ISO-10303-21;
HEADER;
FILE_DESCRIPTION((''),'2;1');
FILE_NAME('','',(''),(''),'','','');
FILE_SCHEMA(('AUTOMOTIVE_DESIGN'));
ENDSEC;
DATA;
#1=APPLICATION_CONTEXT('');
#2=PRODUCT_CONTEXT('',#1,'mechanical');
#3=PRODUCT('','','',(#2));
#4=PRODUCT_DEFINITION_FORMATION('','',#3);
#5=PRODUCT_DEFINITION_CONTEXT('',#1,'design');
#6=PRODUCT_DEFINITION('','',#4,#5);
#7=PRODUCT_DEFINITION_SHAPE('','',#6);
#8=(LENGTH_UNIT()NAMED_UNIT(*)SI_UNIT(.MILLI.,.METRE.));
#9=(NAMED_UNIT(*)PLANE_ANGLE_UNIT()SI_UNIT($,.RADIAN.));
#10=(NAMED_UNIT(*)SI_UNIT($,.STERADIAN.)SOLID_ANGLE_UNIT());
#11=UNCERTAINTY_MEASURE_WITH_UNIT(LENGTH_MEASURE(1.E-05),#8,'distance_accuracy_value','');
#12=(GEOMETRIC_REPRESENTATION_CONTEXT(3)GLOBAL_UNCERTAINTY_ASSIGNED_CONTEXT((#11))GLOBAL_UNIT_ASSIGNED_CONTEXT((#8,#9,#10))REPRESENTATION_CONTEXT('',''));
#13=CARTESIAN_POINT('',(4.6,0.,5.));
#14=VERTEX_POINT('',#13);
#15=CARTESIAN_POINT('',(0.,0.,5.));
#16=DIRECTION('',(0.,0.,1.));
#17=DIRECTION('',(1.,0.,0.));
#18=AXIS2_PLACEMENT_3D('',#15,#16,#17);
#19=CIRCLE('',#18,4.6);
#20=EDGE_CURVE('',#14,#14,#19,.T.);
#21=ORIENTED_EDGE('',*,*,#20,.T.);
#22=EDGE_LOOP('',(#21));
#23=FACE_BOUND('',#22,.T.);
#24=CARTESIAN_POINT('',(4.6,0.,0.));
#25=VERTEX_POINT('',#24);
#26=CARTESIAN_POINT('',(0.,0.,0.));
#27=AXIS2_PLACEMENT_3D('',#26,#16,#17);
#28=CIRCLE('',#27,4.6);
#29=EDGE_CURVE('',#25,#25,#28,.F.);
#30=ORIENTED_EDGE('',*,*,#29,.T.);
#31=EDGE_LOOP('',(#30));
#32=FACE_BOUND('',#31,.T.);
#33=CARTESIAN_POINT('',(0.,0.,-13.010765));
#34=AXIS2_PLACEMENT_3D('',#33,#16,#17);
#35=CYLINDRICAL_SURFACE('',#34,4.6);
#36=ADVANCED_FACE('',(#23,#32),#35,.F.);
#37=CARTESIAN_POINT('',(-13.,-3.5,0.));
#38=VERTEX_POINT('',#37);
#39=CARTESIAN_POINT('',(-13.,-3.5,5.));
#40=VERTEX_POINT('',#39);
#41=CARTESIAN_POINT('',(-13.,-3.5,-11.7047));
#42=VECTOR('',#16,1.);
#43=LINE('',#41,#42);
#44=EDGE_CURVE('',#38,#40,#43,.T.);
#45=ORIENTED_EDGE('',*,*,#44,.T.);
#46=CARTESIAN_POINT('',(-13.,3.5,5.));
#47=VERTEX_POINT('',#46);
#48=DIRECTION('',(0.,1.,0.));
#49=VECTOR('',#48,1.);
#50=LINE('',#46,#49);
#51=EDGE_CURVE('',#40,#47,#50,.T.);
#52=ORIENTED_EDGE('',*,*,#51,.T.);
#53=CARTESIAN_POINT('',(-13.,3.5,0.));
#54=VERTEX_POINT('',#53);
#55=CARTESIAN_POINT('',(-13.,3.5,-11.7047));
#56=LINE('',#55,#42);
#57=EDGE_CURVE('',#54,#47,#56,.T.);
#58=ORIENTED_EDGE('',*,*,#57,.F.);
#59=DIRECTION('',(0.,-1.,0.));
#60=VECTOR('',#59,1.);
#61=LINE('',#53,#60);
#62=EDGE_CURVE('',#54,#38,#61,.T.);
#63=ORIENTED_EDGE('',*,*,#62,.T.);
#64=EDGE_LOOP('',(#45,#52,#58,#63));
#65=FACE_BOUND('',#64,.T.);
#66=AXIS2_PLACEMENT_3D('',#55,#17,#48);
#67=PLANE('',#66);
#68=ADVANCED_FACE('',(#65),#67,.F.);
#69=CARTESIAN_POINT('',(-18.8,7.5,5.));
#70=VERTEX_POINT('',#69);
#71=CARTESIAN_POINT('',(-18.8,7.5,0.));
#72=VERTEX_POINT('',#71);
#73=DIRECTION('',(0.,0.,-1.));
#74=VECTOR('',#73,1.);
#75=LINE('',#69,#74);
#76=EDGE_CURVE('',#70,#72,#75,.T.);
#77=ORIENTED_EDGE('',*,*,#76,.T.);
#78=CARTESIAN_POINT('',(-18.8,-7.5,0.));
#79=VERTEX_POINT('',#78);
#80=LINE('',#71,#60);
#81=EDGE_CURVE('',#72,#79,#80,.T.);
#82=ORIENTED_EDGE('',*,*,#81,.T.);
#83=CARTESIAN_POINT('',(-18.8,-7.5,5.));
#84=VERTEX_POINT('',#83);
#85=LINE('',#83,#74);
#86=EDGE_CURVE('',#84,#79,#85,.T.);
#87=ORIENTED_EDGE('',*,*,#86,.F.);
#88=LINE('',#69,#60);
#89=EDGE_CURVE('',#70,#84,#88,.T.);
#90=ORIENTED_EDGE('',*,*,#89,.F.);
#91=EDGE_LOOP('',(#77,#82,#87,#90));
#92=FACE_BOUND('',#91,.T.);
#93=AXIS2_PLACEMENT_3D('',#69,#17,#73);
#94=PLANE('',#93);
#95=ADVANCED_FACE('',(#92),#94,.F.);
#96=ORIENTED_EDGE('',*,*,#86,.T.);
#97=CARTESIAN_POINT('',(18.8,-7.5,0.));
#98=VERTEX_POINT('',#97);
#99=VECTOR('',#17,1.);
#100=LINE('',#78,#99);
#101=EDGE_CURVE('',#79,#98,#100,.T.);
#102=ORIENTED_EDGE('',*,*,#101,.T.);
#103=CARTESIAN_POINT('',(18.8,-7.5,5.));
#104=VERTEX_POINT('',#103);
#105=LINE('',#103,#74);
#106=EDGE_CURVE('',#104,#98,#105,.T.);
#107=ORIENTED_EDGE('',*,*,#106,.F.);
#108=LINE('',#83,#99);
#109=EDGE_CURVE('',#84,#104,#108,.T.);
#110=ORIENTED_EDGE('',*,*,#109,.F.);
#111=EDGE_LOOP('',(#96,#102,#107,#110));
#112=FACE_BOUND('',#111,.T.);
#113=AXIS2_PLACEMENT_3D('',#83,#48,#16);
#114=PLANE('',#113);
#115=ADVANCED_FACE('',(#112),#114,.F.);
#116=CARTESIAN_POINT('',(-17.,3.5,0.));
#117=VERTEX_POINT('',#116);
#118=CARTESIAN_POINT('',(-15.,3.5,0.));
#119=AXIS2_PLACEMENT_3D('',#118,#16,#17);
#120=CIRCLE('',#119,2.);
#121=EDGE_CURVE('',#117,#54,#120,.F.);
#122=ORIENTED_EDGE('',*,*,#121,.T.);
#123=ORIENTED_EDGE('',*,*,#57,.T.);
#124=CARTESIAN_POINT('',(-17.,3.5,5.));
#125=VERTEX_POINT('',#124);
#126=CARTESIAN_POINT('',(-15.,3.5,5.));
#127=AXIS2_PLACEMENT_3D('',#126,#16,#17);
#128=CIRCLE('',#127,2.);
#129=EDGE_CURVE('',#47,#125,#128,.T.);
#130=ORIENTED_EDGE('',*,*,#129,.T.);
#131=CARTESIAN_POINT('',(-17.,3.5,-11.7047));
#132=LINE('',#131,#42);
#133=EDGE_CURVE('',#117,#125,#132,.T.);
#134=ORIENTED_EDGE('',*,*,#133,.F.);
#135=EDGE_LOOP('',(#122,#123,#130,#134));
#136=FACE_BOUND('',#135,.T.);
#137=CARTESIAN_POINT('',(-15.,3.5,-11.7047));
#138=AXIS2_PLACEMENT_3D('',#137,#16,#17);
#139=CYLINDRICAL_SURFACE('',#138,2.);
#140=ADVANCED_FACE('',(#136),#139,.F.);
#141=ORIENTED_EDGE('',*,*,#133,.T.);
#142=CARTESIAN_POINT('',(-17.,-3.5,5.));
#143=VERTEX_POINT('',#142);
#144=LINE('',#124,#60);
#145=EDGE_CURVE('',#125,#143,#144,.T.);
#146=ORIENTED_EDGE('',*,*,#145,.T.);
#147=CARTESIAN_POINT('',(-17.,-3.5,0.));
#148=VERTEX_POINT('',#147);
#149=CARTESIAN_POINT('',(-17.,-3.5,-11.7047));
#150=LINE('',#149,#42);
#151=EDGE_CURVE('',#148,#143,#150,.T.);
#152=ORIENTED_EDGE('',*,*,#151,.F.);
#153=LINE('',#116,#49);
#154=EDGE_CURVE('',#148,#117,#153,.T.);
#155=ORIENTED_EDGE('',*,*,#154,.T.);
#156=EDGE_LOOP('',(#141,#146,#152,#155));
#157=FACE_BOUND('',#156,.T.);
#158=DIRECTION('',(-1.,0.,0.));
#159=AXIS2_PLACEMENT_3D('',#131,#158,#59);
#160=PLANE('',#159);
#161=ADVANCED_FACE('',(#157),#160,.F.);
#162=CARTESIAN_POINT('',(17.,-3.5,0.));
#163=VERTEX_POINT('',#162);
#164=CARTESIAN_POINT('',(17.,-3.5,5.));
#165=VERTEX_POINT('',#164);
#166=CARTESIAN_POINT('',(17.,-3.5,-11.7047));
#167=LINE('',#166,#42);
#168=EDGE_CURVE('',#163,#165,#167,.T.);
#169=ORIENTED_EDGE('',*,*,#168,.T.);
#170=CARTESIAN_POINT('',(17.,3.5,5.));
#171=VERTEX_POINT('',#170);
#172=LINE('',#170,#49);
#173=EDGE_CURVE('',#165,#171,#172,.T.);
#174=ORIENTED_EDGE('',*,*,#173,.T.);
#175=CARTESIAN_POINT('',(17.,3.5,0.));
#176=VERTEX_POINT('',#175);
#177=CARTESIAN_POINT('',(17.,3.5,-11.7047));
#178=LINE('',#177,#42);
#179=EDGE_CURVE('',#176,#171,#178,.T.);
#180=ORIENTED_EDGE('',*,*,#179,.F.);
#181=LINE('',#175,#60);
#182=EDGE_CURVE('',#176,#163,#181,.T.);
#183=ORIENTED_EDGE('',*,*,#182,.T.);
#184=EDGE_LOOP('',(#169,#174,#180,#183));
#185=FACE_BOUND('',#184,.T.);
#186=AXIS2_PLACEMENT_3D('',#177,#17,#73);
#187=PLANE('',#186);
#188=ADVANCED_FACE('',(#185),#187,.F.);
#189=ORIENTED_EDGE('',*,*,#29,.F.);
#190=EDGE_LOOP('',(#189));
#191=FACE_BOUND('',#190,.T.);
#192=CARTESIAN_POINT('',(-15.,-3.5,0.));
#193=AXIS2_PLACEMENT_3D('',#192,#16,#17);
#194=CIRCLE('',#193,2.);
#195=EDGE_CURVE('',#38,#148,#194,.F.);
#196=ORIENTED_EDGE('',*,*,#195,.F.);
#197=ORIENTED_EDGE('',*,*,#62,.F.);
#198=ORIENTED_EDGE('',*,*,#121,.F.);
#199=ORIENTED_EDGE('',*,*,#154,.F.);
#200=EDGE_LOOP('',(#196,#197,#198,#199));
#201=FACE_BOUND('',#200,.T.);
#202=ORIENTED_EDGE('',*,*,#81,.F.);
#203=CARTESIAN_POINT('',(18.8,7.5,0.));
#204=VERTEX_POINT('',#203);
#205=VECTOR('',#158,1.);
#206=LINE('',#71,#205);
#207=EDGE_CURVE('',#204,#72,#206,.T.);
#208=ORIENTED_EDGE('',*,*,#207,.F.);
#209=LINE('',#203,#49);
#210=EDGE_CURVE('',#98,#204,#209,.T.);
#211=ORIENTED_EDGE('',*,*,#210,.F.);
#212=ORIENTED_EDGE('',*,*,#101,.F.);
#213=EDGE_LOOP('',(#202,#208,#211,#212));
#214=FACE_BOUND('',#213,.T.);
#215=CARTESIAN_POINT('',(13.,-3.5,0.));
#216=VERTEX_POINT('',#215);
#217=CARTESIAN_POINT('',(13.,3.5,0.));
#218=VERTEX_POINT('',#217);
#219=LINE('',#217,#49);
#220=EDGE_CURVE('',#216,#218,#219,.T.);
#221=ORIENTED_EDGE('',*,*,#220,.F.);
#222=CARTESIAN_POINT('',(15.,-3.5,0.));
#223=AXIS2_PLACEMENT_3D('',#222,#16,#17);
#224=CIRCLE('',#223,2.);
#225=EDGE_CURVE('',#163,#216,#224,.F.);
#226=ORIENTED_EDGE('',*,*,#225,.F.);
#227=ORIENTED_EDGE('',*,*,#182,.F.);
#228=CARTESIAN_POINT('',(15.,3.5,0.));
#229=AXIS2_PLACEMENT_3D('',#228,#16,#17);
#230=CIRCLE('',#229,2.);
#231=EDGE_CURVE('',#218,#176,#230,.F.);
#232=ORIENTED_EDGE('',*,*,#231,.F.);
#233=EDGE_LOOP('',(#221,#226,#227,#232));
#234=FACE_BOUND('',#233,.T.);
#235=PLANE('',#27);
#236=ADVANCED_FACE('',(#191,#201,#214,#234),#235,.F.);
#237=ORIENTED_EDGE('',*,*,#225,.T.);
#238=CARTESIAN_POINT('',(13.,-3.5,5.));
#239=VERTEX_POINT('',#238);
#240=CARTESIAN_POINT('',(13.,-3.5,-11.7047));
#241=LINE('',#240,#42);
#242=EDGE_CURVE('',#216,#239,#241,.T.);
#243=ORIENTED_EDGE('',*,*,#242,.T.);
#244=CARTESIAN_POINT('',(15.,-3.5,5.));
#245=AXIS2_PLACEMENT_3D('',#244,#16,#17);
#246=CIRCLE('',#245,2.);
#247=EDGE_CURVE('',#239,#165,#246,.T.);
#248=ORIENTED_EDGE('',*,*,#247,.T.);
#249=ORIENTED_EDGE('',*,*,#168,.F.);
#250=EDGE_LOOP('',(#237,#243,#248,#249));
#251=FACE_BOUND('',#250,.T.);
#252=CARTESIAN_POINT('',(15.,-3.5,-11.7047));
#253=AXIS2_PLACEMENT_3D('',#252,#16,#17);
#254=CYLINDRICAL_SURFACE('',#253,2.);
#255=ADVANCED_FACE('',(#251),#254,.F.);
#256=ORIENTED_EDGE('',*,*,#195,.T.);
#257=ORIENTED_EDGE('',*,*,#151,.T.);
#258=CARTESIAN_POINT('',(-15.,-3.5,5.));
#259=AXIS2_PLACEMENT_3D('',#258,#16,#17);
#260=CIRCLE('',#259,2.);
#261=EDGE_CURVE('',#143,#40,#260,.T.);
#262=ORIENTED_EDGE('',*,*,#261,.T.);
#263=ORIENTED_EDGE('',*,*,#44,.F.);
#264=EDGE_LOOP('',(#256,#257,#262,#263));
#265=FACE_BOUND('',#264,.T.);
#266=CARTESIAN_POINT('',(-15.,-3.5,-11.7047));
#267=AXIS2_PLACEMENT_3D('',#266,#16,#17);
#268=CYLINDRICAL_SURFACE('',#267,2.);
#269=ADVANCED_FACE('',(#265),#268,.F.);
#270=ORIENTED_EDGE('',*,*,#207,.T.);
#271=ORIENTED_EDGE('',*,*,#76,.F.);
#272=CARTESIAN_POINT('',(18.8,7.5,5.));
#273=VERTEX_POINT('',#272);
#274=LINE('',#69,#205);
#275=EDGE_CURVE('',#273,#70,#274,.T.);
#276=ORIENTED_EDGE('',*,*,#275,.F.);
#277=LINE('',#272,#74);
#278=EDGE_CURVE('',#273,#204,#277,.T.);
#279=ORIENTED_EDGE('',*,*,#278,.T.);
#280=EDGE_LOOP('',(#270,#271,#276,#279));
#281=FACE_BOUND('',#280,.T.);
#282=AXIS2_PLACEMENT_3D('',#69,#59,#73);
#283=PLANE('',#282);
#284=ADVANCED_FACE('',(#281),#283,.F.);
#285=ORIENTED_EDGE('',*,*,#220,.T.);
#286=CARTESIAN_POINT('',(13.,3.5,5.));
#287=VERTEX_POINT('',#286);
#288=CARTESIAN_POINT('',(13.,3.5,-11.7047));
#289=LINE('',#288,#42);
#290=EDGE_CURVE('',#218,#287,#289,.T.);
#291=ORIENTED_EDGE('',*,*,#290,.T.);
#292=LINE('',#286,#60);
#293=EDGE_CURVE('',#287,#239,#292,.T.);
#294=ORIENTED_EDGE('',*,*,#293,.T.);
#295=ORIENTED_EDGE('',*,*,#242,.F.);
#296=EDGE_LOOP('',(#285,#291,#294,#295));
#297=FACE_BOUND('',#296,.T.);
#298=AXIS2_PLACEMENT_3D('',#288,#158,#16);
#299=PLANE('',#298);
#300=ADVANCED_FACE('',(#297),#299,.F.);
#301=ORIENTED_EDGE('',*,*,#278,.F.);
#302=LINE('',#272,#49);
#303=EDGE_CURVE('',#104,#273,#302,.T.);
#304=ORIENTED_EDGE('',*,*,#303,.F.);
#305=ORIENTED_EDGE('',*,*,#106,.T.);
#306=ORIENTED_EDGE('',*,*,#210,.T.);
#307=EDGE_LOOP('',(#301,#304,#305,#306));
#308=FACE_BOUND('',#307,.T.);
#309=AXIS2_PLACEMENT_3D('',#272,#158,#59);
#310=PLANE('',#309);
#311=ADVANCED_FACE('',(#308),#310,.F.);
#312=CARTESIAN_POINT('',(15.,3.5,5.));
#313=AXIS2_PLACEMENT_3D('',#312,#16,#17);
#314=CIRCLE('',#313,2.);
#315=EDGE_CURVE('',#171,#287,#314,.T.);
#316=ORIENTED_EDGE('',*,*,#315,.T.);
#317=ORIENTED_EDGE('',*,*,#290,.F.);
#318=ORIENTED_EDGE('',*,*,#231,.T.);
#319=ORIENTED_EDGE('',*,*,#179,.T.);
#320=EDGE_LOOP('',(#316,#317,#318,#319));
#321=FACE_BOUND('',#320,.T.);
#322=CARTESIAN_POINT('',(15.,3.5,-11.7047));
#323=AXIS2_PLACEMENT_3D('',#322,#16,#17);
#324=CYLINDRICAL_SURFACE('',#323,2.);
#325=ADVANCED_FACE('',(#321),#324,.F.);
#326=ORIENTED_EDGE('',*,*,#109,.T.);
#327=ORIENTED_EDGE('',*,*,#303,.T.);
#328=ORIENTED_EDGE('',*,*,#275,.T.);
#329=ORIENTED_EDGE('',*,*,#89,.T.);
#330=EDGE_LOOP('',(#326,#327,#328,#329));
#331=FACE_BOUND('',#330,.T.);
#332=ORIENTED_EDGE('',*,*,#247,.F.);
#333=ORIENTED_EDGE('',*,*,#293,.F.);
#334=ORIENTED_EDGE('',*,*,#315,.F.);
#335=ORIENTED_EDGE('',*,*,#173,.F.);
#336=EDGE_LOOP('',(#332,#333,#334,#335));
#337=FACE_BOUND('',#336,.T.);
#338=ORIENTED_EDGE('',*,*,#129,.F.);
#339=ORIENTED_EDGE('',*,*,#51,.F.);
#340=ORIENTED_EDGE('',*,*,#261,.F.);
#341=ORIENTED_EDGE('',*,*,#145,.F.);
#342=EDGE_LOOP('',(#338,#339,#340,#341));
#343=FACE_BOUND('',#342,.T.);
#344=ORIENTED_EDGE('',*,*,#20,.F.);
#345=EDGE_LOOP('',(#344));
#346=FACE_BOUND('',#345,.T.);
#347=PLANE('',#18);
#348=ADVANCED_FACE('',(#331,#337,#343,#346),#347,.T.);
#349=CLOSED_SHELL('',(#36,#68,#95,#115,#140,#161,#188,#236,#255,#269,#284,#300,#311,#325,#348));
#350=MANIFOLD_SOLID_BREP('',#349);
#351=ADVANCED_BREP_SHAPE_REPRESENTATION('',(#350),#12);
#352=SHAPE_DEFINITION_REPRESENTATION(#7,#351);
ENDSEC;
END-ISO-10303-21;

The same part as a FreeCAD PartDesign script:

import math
import FreeCAD as App
import Part
import Sketcher
from FreeCAD import Vector

doc = App.newDocument("Part")
body = doc.addObject("PartDesign::Body", "Body")

# Sketch on XY plane
sketch1 = body.newObject("Sketcher::SketchObject", "Sketch")
sketch1.AttachmentSupport = (doc.getObject("XY_Plane"), [""])
sketch1.MapMode = "FlatFace"
sketch1.addGeometry(Part.LineSegment(Vector(-18.8, 7.5, 0), Vector(-18.8, -7.5, 0)), False)
sketch1.addGeometry(Part.LineSegment(Vector(-18.8, -7.5, 0), Vector(18.8, -7.5, 0)), False)
sketch1.addGeometry(Part.LineSegment(Vector(18.8, -7.5, 0), Vector(18.8, 7.5, 0)), False)
sketch1.addGeometry(Part.LineSegment(Vector(18.8, 7.5, 0), Vector(-18.8, 7.5, 0)), False)
sketch1.addConstraint(Sketcher.Constraint("Coincident", 0, 2, 1, 1))
sketch1.addConstraint(Sketcher.Constraint("Coincident", 1, 2, 2, 1))
sketch1.addConstraint(Sketcher.Constraint("Coincident", 2, 2, 3, 1))
sketch1.addConstraint(Sketcher.Constraint("Coincident", 3, 2, 0, 1))
sketch1.addConstraint(Sketcher.Constraint("Vertical", 0))
sketch1.addConstraint(Sketcher.Constraint("Horizontal", 1))
sketch1.addConstraint(Sketcher.Constraint("Vertical", 2))
sketch1.addConstraint(Sketcher.Constraint("Horizontal", 3))
sketch1.addConstraint(Sketcher.Constraint("Symmetric", 0, 2, 2, 2, -1, 1))
sketch1.addConstraint(Sketcher.Constraint("DistanceY", 0, 2, 0, 1, 15.0))
sketch1.addConstraint(Sketcher.Constraint("DistanceX", 1, 1, 1, 2, 37.6))
pad1 = body.newObject("PartDesign::Pad", "Pad")
pad1.Profile = sketch1
pad1.Length = 5

# Sketch on XY plane
sketch2 = body.newObject("Sketcher::SketchObject", "Sketch001")
sketch2.AttachmentSupport = (doc.getObject("XY_Plane"), [""])
sketch2.MapMode = "FlatFace"
sketch2.AttachmentOffset = App.Placement(Vector(0, 0, 5), App.Rotation())
sketch2.addGeometry(Part.LineSegment(Vector(-13, -3.5, 0), Vector(-13, 3.5, 0)), False)
sketch2.addGeometry(Part.ArcOfCircle(Part.Circle(Vector(-15, 3.5, 0), Vector(0, 0, 1), 2), math.radians(0), math.radians(180)), False)
sketch2.addGeometry(Part.LineSegment(Vector(-17, 3.5, 0), Vector(-17, -3.5, 0)), False)
sketch2.addGeometry(Part.ArcOfCircle(Part.Circle(Vector(-15, -3.5, 0), Vector(0, 0, 1), 2), math.radians(180), math.radians(360)), False)
sketch2.addGeometry(Part.LineSegment(Vector(17, -3.5, 0), Vector(17, 3.5, 0)), False)
sketch2.addGeometry(Part.ArcOfCircle(Part.Circle(Vector(15, 3.5, 0), Vector(0, 0, 1), 2), math.radians(0), math.radians(180)), False)
sketch2.addGeometry(Part.LineSegment(Vector(13, 3.5, 0), Vector(13, -3.5, 0)), False)
sketch2.addGeometry(Part.ArcOfCircle(Part.Circle(Vector(15, -3.5, 0), Vector(0, 0, 1), 2), math.radians(180), math.radians(360)), False)
sketch2.addConstraint(Sketcher.Constraint("Tangent", 0, 2, 1, 1))
sketch2.addConstraint(Sketcher.Constraint("Tangent", 1, 2, 2, 1))
sketch2.addConstraint(Sketcher.Constraint("Tangent", 2, 2, 3, 1))
sketch2.addConstraint(Sketcher.Constraint("Tangent", 3, 2, 0, 1))
sketch2.addConstraint(Sketcher.Constraint("Tangent", 4, 2, 5, 1))
sketch2.addConstraint(Sketcher.Constraint("Tangent", 5, 2, 6, 1))
sketch2.addConstraint(Sketcher.Constraint("Tangent", 6, 2, 7, 1))
sketch2.addConstraint(Sketcher.Constraint("Tangent", 7, 2, 4, 1))
sketch2.addConstraint(Sketcher.Constraint("Vertical", 0))
sketch2.addConstraint(Sketcher.Constraint("Vertical", 2))
sketch2.addConstraint(Sketcher.Constraint("Vertical", 4))
sketch2.addConstraint(Sketcher.Constraint("Vertical", 6))
sketch2.addConstraint(Sketcher.Constraint("Equal", 3, 5))
sketch2.addConstraint(Sketcher.Constraint("Symmetric", 3, 3, 5, 3, -1, 1))
sketch2.addConstraint(Sketcher.Constraint("Horizontal", 1, 3, 5, 3))
sketch2.addConstraint(Sketcher.Constraint("Horizontal", 3, 3, 7, 3))
sketch2.addConstraint(Sketcher.Constraint("Radius", 1, 2.0))
sketch2.addConstraint(Sketcher.Constraint("DistanceY", 0, 1, 0, 2, 7.0))
sketch2.addConstraint(Sketcher.Constraint("DistanceX", 1, 3, -1, 1, 15.0))
pocket1 = body.newObject("PartDesign::Pocket", "Pocket")
pocket1.Profile = sketch2
pocket1.Length = 5

# Sketch on XY plane
sketch3 = body.newObject("Sketcher::SketchObject", "Sketch002")
sketch3.AttachmentSupport = (doc.getObject("XY_Plane"), [""])
sketch3.MapMode = "FlatFace"
sketch3.AttachmentOffset = App.Placement(Vector(0, 0, 5), App.Rotation())
sketch3.addGeometry(Part.Circle(Vector(0, 0, 0), Vector(0, 0, 1), 4.6), False)
sketch3.addConstraint(Sketcher.Constraint("Coincident", 0, 3, -1, 1))
sketch3.addConstraint(Sketcher.Constraint("Diameter", 0, 9.2))
pocket2 = body.newObject("PartDesign::Pocket", "Pocket001")
pocket2.Profile = sketch3
pocket2.Length = 5

doc.recompute()
